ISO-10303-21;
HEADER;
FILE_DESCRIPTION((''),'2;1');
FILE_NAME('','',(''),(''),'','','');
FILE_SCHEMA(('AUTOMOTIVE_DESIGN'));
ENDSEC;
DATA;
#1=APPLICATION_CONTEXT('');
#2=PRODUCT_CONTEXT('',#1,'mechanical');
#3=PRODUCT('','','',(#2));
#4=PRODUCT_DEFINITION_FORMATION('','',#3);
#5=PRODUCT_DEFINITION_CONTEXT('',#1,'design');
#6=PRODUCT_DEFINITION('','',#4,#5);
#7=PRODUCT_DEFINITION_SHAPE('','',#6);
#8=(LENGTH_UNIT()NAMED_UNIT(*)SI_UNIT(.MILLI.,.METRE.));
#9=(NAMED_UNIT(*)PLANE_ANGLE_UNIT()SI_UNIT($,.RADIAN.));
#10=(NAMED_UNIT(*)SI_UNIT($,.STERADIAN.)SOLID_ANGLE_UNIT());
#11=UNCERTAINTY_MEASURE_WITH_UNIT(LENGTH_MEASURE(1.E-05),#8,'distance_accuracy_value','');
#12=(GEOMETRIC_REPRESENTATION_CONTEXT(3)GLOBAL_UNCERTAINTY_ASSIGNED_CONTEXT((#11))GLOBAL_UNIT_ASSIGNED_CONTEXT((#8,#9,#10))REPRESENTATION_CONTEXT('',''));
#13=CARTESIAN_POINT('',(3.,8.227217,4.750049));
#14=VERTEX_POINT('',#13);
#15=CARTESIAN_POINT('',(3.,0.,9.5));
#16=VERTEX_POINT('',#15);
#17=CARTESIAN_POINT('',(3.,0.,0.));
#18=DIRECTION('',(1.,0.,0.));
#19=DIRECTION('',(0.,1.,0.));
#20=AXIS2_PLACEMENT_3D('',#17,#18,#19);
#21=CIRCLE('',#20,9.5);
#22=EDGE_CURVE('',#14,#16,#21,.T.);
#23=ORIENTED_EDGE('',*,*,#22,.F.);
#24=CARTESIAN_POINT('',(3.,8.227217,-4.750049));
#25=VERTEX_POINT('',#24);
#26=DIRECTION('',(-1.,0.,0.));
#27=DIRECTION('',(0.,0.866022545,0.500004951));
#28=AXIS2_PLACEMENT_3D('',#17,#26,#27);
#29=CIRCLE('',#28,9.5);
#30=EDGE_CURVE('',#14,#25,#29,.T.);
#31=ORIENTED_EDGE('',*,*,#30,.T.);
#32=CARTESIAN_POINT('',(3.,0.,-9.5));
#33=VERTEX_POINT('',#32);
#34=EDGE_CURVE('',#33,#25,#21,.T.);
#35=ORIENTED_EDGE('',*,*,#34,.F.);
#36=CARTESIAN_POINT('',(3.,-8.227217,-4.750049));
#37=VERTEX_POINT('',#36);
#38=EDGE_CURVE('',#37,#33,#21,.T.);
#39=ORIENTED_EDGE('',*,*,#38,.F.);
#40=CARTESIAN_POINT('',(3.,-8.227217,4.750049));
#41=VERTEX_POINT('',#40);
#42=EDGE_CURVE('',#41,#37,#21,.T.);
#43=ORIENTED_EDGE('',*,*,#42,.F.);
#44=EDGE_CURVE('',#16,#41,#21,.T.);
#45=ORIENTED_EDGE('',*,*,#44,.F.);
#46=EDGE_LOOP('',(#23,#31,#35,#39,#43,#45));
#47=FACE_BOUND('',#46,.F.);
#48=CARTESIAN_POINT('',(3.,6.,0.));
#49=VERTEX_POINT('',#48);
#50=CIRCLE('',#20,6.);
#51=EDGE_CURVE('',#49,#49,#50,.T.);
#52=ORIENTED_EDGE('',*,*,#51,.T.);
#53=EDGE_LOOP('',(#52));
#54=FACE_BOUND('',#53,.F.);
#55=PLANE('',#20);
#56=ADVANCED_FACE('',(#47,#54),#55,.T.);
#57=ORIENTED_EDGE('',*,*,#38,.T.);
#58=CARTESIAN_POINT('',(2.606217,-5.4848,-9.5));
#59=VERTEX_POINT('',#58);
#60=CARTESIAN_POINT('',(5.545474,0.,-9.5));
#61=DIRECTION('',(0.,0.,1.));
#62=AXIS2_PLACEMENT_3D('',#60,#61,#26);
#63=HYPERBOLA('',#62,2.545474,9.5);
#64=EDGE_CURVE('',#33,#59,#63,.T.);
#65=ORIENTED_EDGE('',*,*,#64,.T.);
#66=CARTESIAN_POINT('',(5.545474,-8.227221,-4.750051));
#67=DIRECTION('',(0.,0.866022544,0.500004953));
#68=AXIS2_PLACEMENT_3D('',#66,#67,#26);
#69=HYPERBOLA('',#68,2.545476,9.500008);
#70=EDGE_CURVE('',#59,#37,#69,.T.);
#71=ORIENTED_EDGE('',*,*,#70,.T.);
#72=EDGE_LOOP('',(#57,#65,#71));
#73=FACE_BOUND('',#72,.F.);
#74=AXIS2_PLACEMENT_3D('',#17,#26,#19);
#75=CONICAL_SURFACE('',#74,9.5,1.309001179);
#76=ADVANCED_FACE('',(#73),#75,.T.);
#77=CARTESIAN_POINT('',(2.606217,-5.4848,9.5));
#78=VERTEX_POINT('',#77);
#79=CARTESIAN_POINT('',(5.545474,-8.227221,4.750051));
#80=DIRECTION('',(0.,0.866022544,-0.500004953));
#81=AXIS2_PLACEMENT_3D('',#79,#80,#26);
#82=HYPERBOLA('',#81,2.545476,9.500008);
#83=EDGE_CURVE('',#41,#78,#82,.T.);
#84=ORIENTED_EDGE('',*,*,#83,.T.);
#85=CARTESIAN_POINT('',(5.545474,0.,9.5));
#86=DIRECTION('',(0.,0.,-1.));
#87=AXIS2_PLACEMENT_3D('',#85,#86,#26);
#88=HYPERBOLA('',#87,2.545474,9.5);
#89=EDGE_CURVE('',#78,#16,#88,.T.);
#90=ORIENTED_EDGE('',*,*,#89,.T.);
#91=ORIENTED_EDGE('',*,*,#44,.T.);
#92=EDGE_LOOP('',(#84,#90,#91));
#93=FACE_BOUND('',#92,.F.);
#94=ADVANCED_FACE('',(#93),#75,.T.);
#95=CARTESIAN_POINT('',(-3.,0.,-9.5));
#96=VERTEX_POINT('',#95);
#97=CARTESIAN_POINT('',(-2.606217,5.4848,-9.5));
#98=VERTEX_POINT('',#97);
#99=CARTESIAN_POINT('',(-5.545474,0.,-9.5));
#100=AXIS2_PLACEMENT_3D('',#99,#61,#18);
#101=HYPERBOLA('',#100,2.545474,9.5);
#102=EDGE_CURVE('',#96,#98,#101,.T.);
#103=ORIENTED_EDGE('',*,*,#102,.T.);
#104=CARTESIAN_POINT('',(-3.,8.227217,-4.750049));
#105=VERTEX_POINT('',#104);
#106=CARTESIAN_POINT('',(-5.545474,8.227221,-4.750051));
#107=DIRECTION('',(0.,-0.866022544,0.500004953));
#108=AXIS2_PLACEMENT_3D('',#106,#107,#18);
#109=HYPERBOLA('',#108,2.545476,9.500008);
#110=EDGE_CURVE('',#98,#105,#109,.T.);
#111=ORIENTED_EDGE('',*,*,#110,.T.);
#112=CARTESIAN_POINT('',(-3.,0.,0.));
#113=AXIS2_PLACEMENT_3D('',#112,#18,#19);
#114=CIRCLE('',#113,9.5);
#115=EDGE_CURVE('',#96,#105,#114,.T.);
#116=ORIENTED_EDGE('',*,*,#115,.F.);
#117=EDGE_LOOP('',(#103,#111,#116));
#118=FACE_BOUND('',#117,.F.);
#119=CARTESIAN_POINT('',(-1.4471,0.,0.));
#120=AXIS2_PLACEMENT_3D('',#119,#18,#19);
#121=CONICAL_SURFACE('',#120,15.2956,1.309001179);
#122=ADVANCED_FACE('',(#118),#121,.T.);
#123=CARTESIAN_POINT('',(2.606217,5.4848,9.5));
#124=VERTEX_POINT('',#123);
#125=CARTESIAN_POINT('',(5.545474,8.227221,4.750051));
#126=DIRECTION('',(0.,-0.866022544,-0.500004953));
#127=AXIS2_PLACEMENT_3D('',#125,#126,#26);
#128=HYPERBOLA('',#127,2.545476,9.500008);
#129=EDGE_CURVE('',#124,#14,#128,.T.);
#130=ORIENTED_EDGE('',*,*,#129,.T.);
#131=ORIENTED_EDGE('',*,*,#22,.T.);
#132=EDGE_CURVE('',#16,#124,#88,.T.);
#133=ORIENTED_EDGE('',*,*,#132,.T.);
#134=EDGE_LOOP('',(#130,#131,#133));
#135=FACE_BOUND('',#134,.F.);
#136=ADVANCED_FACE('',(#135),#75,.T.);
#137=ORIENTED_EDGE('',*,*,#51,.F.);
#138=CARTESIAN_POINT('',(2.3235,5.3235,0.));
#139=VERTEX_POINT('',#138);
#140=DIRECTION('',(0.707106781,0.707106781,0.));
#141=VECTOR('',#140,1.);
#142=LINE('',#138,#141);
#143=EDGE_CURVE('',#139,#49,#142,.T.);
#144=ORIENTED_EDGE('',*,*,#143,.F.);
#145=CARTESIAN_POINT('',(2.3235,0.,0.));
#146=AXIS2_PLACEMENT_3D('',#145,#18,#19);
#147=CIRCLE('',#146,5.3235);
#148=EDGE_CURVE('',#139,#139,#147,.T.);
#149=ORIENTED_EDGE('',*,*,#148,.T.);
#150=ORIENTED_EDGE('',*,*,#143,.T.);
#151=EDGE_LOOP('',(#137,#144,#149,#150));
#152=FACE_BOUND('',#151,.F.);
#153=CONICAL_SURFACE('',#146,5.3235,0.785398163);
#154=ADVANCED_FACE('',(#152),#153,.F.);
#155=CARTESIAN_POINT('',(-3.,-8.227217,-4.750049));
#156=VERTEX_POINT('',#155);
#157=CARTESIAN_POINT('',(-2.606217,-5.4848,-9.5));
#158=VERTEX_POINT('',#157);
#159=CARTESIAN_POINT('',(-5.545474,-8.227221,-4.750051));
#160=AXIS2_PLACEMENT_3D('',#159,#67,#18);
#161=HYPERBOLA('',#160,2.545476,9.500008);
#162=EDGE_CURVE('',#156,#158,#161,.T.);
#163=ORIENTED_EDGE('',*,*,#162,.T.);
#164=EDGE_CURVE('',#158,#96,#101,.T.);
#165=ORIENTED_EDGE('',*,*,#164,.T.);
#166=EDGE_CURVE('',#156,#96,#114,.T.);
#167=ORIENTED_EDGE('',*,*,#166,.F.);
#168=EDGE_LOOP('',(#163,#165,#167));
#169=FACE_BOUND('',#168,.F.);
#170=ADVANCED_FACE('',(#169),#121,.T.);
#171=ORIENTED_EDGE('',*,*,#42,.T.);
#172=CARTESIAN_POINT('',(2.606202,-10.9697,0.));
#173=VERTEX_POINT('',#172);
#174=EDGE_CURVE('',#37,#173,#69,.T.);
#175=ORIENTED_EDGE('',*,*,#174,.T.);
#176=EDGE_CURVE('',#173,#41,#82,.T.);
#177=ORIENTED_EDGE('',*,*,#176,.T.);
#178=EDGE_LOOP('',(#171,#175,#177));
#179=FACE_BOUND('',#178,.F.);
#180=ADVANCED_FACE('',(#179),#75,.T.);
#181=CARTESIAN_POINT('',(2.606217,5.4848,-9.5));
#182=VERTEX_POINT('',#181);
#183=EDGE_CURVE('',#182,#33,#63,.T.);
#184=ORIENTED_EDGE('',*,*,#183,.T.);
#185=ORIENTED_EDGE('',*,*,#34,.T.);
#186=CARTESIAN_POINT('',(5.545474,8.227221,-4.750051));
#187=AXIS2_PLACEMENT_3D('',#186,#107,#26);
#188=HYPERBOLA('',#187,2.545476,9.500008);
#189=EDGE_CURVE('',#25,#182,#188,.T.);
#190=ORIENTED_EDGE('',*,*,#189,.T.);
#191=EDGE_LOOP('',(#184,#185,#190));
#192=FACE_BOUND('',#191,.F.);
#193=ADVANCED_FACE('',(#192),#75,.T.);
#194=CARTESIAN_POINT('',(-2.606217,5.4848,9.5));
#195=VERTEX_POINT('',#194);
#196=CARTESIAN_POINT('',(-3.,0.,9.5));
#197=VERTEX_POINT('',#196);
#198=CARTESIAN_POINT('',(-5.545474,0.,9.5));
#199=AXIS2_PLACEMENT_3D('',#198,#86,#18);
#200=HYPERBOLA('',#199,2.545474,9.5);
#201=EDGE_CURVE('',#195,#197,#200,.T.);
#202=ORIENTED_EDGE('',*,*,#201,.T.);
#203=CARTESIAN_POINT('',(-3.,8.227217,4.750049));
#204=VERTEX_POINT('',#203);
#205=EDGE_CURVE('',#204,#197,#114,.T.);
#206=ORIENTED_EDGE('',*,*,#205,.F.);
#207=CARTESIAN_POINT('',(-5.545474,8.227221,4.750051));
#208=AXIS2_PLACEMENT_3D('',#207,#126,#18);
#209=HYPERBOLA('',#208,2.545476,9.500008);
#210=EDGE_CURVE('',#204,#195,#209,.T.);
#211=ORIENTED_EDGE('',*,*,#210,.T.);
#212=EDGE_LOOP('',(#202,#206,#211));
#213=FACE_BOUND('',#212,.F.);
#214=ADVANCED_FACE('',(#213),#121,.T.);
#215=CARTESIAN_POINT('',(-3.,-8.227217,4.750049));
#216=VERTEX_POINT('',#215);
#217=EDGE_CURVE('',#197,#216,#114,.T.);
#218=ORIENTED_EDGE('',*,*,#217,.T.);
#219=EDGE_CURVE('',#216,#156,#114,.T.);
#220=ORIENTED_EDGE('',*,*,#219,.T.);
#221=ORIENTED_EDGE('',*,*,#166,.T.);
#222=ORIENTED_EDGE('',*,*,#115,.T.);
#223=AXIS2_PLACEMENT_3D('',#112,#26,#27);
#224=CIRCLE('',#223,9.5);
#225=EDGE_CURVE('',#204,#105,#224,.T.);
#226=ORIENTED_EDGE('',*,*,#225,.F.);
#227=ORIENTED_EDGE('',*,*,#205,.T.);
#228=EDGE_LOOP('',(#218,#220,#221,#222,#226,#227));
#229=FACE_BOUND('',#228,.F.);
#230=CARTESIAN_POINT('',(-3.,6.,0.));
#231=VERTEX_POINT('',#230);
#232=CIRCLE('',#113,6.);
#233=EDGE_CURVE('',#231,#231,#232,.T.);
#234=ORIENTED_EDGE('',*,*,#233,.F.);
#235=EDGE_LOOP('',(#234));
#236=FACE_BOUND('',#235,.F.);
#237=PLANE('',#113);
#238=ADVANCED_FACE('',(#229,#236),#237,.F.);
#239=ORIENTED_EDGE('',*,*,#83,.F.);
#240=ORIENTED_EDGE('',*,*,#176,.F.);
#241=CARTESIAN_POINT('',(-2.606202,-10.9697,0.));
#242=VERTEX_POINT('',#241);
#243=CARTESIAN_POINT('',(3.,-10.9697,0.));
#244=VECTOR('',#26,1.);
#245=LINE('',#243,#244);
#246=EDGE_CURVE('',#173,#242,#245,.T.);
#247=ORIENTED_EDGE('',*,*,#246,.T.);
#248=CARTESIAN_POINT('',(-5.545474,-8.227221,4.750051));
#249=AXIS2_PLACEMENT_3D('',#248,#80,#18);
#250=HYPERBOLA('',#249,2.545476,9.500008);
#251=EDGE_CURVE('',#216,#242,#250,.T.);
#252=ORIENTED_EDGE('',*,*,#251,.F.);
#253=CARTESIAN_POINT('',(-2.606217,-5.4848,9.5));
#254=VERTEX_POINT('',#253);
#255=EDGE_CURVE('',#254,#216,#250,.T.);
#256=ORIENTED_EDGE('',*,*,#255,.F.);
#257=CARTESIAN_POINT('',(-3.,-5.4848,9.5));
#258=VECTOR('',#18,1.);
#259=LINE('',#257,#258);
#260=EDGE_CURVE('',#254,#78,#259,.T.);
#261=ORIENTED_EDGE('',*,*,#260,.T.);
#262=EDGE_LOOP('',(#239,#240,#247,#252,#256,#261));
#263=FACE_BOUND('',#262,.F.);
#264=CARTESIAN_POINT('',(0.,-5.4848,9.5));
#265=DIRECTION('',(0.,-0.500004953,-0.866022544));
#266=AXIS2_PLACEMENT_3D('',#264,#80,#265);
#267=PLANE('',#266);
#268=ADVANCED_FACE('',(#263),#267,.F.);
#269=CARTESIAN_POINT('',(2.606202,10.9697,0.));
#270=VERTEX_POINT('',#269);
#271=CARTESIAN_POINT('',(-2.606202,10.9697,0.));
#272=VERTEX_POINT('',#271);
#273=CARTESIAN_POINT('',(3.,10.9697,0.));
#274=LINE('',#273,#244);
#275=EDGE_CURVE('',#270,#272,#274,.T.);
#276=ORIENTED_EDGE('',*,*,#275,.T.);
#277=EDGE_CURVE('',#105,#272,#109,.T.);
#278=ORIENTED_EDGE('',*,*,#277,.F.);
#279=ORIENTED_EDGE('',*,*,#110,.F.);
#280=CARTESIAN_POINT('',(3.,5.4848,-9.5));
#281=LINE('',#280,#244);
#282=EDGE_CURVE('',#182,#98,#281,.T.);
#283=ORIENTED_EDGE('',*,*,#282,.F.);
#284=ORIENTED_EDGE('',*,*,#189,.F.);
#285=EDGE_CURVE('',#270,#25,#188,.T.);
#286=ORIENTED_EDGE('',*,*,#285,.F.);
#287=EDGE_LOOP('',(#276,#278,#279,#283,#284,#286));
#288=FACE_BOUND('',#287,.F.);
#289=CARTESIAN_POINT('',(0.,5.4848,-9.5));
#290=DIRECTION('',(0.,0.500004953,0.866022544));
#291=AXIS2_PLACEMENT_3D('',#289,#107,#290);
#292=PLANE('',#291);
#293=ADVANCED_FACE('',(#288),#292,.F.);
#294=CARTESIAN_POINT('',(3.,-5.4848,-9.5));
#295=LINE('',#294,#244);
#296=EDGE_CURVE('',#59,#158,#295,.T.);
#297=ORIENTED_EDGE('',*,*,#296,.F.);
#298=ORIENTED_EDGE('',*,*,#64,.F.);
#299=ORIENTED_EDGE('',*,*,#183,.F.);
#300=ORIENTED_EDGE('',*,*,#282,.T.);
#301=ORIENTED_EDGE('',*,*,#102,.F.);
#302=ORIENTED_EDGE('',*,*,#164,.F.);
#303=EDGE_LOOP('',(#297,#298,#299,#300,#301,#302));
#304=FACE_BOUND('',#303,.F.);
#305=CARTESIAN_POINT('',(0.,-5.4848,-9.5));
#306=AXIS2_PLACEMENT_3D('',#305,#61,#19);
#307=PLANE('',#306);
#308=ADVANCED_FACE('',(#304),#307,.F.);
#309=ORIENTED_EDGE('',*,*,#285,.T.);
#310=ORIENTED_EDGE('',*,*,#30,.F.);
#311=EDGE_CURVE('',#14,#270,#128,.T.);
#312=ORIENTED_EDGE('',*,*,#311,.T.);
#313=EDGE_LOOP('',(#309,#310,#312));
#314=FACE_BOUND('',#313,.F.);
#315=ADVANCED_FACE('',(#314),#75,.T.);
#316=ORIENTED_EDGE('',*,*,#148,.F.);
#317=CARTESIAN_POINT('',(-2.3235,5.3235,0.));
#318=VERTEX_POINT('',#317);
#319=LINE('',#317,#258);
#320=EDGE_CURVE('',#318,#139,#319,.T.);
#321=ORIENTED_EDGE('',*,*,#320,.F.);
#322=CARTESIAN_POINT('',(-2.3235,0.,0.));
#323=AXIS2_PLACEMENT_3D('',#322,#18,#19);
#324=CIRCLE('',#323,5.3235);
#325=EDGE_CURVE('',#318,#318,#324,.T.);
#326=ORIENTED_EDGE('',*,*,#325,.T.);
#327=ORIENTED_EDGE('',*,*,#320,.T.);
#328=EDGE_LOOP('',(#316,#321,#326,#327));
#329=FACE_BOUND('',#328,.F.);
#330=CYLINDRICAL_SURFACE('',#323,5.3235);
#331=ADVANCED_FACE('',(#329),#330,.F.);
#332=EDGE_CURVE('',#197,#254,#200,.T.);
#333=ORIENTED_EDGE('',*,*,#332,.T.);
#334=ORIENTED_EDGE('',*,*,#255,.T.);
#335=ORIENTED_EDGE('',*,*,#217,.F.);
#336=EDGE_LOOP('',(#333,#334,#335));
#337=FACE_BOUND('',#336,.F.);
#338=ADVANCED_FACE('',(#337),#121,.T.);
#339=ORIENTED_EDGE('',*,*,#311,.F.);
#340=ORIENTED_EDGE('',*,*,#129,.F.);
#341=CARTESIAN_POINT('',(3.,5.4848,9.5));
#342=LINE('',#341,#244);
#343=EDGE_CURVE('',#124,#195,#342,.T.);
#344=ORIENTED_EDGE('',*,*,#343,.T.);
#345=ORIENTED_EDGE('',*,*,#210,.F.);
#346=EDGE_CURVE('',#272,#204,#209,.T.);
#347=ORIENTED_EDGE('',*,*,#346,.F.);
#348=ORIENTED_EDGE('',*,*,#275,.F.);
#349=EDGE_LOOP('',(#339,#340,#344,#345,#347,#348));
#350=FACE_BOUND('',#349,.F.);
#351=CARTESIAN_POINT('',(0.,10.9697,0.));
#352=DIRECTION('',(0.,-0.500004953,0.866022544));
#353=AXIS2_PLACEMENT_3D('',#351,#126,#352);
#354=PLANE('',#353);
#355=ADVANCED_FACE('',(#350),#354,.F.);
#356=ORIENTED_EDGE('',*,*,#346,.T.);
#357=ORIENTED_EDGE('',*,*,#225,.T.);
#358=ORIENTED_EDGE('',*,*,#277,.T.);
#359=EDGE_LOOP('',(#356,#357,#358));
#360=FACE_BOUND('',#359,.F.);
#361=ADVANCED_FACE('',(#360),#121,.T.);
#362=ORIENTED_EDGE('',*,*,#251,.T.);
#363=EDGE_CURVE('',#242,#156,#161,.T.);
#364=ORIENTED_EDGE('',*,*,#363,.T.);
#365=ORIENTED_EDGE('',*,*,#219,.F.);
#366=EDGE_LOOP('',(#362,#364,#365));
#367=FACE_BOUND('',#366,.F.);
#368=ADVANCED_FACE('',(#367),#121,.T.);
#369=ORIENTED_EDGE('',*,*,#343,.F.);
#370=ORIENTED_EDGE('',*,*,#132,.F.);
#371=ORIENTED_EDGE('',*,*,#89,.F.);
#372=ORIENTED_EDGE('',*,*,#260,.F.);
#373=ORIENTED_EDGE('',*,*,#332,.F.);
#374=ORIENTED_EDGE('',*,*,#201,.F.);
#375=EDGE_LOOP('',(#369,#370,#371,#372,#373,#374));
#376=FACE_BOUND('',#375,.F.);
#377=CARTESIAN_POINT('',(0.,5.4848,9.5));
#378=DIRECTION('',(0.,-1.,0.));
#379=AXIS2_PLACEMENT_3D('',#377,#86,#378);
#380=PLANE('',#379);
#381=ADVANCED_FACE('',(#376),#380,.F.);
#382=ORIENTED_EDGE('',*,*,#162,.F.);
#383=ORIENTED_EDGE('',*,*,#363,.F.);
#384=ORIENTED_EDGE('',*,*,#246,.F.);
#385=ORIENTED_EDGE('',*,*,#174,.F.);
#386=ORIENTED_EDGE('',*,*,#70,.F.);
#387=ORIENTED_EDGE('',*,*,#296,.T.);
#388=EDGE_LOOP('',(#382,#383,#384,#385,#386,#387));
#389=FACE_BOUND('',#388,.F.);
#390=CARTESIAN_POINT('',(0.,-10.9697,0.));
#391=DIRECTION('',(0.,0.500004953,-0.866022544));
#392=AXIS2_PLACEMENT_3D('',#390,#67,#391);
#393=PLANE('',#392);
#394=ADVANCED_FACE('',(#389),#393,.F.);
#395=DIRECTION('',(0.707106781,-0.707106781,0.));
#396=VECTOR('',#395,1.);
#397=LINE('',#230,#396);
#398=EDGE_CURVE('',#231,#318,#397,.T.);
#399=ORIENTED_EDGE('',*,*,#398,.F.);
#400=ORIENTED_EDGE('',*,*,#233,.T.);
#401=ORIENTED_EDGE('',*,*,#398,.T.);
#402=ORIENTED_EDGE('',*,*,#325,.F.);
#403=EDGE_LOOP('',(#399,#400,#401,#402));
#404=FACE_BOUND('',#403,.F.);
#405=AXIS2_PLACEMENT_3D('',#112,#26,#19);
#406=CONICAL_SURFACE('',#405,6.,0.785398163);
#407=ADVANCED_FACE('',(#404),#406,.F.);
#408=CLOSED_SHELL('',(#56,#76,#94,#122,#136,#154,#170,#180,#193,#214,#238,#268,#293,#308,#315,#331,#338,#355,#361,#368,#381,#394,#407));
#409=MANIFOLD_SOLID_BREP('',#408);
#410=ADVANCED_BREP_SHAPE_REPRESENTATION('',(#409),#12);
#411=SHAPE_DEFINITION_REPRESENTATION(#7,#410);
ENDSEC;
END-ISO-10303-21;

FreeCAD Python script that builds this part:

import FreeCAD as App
import Part
import Sketcher
from FreeCAD import Vector
Q = App.Units.Quantity

doc = App.newDocument("Part")
body = doc.addObject("PartDesign::Body", "Body")

sketch1 = doc.addObject("Sketcher::SketchObject", "Sketch")
body.addObject(sketch1)
sketch1.AttachmentSupport = (doc.XY_Plane, [""])
sketch1.MapMode = "FlatFace"
sketch1.addGeometry(Part.LineSegment(Vector(-3, 9.5, 0), Vector(-3, 6, 0)), False)
sketch1.addGeometry(Part.LineSegment(Vector(-3, 6, 0), Vector(-2.3, 5.3, 0)), False)
sketch1.addGeometry(Part.LineSegment(Vector(-2.3, 5.3, 0), Vector(2.3, 5.3, 0)), False)
sketch1.addGeometry(Part.LineSegment(Vector(2.3, 5.3, 0), Vector(3, 6, 0)), False)
sketch1.addGeometry(Part.LineSegment(Vector(3, 6, 0), Vector(3, 9.5, 0)), False)
sketch1.addGeometry(Part.LineSegment(Vector(3, 9.5, 0), Vector(1.4, 15.3, 0)), False)
sketch1.addGeometry(Part.LineSegment(Vector(1.4, 15.3, 0), Vector(-1.4, 15.3, 0)), False)
sketch1.addGeometry(Part.LineSegment(Vector(-1.4, 15.3, 0), Vector(-3, 9.5, 0)), False)
sketch1.addConstraint(Sketcher.Constraint("Coincident", 0, 2, 1, 1))
sketch1.addConstraint(Sketcher.Constraint("Coincident", 1, 2, 2, 1))
sketch1.addConstraint(Sketcher.Constraint("Coincident", 2, 2, 3, 1))
sketch1.addConstraint(Sketcher.Constraint("Coincident", 3, 2, 4, 1))
sketch1.addConstraint(Sketcher.Constraint("Coincident", 4, 2, 5, 1))
sketch1.addConstraint(Sketcher.Constraint("Coincident", 5, 2, 6, 1))
sketch1.addConstraint(Sketcher.Constraint("Coincident", 6, 2, 7, 1))
sketch1.addConstraint(Sketcher.Constraint("Coincident", 7, 2, 0, 1))
sketch1.addConstraint(Sketcher.Constraint("Vertical", 0))
sketch1.addConstraint(Sketcher.Constraint("Horizontal", 2))
sketch1.addConstraint(Sketcher.Constraint("Vertical", 4))
sketch1.addConstraint(Sketcher.Constraint("Horizontal", 6))
sketch1.addConstraint(Sketcher.Constraint("Symmetric", 0, 2, 3, 2, -2))
sketch1.addConstraint(Sketcher.Constraint("Perpendicular", 1, 3))
sketch1.addConstraint(Sketcher.Constraint("Horizontal", 4, 2, 7, 2))
sketch1.addConstraint(Sketcher.Constraint("Equal", 1, 3))
sketch1.addConstraint(Sketcher.Constraint("Equal", 5, 7))
sketch1.addConstraint(Sketcher.Constraint("Angle", 5, Q("104.9998 deg")))
sketch1.addConstraint(Sketcher.Constraint("Distance", 5, 6.0))
sketch1.addConstraint(Sketcher.Constraint("DistanceY", 0, 2, 0, 1, 3.5))
sketch1.addConstraint(Sketcher.Constraint("DistanceX", 0, 2, -1, 1, 3.0))
sketch1.addConstraint(Sketcher.Constraint("DistanceY", -1, 1, 0, 2, 6.0))
sketch1.addConstraint(Sketcher.Constraint("DistanceX", 2, 1, 2, 2, 4.647))
revolution = doc.addObject("PartDesign::Revolution", "Revolution")
body.addObject(revolution)
revolution.Profile = sketch1
revolution.ReferenceAxis = (sketch1, ["H_Axis"])
revolution.Angle = 360

sketch2 = doc.addObject("Sketcher::SketchObject", "Sketch001")
body.addObject(sketch2)
sketch2.AttachmentSupport = (doc.YZ_Plane, [""])
sketch2.MapMode = "FlatFace"
sketch2.addGeometry(Part.LineSegment(Vector(38, 38, 0), Vector(-38, 38, 0)), False)
sketch2.addGeometry(Part.LineSegment(Vector(-38, 38, 0), Vector(-38, -38, 0)), False)
sketch2.addGeometry(Part.LineSegment(Vector(-38, -38, 0), Vector(38, -38, 0)), False)
sketch2.addGeometry(Part.LineSegment(Vector(38, -38, 0), Vector(38, 38, 0)), False)
sketch2.addGeometry(Part.LineSegment(Vector(-11, 0, 0), Vector(-5, 10, 0)), False)
sketch2.addGeometry(Part.LineSegment(Vector(-5, 10, 0), Vector(5, 10, 0)), False)
sketch2.addGeometry(Part.LineSegment(Vector(5, 10, 0), Vector(11, 0, 0)), False)
sketch2.addGeometry(Part.LineSegment(Vector(11, 0, 0), Vector(5, -10, 0)), False)
sketch2.addGeometry(Part.LineSegment(Vector(5, -10, 0), Vector(-5, -10, 0)), False)
sketch2.addGeometry(Part.LineSegment(Vector(-5, -10, 0), Vector(-11, 0, 0)), False)
sketch2.addConstraint(Sketcher.Constraint("Coincident", 0, 2, 1, 1))
sketch2.addConstraint(Sketcher.Constraint("Coincident", 1, 2, 2, 1))
sketch2.addConstraint(Sketcher.Constraint("Coincident", 2, 2, 3, 1))
sketch2.addConstraint(Sketcher.Constraint("Coincident", 3, 2, 0, 1))
sketch2.addConstraint(Sketcher.Constraint("Coincident", 4, 2, 5, 1))
sketch2.addConstraint(Sketcher.Constraint("Coincident", 5, 2, 6, 1))
sketch2.addConstraint(Sketcher.Constraint("Coincident", 6, 2, 7, 1))
sketch2.addConstraint(Sketcher.Constraint("Coincident", 7, 2, 8, 1))
sketch2.addConstraint(Sketcher.Constraint("Coincident", 8, 2, 9, 1))
sketch2.addConstraint(Sketcher.Constraint("Coincident", 9, 2, 4, 1))
sketch2.addConstraint(Sketcher.Constraint("Horizontal", 0))
sketch2.addConstraint(Sketcher.Constraint("Vertical", 1))
sketch2.addConstraint(Sketcher.Constraint("Horizontal", 2))
sketch2.addConstraint(Sketcher.Constraint("Vertical", 3))
sketch2.addConstraint(Sketcher.Constraint("Horizontal", 5))
sketch2.addConstraint(Sketcher.Constraint("Horizontal", 8))
sketch2.addConstraint(Sketcher.Constraint("Symmetric", 0, 2, 2, 2, -1, 1))
sketch2.addConstraint(Sketcher.Constraint("Symmetric", 4, 2, 7, 2, -1, 1))
sketch2.addConstraint(Sketcher.Constraint("Symmetric", 6, 2, 9, 2, -1, 1))
sketch2.addConstraint(Sketcher.Constraint("PointOnObject", 6, 2, -1))
sketch2.addConstraint(Sketcher.Constraint("Parallel", 6, 9))
sketch2.addConstraint(Sketcher.Constraint("Vertical", 5, 2, 7, 2))
sketch2.addConstraint(Sketcher.Constraint("Equal", 2, 1))
sketch2.addConstraint(Sketcher.Constraint("DistanceX", 0, 2, 0, 1, 76.0))
sketch2.addConstraint(Sketcher.Constraint("Angle", 4, Q("59.9997 deg")))
sketch2.addConstraint(Sketcher.Constraint("DistanceY", 7, 2, 5, 2, 19.0))
sketch2.addConstraint(Sketcher.Constraint("DistanceX", 5, 1, 5, 2, 10.9696))
pocket1 = doc.addObject("PartDesign::Pocket", "Pocket")
body.addObject(pocket1)
pocket1.Profile = sketch2
pocket1.Length = 6
pocket1.Midplane = True

doc.recompute()
